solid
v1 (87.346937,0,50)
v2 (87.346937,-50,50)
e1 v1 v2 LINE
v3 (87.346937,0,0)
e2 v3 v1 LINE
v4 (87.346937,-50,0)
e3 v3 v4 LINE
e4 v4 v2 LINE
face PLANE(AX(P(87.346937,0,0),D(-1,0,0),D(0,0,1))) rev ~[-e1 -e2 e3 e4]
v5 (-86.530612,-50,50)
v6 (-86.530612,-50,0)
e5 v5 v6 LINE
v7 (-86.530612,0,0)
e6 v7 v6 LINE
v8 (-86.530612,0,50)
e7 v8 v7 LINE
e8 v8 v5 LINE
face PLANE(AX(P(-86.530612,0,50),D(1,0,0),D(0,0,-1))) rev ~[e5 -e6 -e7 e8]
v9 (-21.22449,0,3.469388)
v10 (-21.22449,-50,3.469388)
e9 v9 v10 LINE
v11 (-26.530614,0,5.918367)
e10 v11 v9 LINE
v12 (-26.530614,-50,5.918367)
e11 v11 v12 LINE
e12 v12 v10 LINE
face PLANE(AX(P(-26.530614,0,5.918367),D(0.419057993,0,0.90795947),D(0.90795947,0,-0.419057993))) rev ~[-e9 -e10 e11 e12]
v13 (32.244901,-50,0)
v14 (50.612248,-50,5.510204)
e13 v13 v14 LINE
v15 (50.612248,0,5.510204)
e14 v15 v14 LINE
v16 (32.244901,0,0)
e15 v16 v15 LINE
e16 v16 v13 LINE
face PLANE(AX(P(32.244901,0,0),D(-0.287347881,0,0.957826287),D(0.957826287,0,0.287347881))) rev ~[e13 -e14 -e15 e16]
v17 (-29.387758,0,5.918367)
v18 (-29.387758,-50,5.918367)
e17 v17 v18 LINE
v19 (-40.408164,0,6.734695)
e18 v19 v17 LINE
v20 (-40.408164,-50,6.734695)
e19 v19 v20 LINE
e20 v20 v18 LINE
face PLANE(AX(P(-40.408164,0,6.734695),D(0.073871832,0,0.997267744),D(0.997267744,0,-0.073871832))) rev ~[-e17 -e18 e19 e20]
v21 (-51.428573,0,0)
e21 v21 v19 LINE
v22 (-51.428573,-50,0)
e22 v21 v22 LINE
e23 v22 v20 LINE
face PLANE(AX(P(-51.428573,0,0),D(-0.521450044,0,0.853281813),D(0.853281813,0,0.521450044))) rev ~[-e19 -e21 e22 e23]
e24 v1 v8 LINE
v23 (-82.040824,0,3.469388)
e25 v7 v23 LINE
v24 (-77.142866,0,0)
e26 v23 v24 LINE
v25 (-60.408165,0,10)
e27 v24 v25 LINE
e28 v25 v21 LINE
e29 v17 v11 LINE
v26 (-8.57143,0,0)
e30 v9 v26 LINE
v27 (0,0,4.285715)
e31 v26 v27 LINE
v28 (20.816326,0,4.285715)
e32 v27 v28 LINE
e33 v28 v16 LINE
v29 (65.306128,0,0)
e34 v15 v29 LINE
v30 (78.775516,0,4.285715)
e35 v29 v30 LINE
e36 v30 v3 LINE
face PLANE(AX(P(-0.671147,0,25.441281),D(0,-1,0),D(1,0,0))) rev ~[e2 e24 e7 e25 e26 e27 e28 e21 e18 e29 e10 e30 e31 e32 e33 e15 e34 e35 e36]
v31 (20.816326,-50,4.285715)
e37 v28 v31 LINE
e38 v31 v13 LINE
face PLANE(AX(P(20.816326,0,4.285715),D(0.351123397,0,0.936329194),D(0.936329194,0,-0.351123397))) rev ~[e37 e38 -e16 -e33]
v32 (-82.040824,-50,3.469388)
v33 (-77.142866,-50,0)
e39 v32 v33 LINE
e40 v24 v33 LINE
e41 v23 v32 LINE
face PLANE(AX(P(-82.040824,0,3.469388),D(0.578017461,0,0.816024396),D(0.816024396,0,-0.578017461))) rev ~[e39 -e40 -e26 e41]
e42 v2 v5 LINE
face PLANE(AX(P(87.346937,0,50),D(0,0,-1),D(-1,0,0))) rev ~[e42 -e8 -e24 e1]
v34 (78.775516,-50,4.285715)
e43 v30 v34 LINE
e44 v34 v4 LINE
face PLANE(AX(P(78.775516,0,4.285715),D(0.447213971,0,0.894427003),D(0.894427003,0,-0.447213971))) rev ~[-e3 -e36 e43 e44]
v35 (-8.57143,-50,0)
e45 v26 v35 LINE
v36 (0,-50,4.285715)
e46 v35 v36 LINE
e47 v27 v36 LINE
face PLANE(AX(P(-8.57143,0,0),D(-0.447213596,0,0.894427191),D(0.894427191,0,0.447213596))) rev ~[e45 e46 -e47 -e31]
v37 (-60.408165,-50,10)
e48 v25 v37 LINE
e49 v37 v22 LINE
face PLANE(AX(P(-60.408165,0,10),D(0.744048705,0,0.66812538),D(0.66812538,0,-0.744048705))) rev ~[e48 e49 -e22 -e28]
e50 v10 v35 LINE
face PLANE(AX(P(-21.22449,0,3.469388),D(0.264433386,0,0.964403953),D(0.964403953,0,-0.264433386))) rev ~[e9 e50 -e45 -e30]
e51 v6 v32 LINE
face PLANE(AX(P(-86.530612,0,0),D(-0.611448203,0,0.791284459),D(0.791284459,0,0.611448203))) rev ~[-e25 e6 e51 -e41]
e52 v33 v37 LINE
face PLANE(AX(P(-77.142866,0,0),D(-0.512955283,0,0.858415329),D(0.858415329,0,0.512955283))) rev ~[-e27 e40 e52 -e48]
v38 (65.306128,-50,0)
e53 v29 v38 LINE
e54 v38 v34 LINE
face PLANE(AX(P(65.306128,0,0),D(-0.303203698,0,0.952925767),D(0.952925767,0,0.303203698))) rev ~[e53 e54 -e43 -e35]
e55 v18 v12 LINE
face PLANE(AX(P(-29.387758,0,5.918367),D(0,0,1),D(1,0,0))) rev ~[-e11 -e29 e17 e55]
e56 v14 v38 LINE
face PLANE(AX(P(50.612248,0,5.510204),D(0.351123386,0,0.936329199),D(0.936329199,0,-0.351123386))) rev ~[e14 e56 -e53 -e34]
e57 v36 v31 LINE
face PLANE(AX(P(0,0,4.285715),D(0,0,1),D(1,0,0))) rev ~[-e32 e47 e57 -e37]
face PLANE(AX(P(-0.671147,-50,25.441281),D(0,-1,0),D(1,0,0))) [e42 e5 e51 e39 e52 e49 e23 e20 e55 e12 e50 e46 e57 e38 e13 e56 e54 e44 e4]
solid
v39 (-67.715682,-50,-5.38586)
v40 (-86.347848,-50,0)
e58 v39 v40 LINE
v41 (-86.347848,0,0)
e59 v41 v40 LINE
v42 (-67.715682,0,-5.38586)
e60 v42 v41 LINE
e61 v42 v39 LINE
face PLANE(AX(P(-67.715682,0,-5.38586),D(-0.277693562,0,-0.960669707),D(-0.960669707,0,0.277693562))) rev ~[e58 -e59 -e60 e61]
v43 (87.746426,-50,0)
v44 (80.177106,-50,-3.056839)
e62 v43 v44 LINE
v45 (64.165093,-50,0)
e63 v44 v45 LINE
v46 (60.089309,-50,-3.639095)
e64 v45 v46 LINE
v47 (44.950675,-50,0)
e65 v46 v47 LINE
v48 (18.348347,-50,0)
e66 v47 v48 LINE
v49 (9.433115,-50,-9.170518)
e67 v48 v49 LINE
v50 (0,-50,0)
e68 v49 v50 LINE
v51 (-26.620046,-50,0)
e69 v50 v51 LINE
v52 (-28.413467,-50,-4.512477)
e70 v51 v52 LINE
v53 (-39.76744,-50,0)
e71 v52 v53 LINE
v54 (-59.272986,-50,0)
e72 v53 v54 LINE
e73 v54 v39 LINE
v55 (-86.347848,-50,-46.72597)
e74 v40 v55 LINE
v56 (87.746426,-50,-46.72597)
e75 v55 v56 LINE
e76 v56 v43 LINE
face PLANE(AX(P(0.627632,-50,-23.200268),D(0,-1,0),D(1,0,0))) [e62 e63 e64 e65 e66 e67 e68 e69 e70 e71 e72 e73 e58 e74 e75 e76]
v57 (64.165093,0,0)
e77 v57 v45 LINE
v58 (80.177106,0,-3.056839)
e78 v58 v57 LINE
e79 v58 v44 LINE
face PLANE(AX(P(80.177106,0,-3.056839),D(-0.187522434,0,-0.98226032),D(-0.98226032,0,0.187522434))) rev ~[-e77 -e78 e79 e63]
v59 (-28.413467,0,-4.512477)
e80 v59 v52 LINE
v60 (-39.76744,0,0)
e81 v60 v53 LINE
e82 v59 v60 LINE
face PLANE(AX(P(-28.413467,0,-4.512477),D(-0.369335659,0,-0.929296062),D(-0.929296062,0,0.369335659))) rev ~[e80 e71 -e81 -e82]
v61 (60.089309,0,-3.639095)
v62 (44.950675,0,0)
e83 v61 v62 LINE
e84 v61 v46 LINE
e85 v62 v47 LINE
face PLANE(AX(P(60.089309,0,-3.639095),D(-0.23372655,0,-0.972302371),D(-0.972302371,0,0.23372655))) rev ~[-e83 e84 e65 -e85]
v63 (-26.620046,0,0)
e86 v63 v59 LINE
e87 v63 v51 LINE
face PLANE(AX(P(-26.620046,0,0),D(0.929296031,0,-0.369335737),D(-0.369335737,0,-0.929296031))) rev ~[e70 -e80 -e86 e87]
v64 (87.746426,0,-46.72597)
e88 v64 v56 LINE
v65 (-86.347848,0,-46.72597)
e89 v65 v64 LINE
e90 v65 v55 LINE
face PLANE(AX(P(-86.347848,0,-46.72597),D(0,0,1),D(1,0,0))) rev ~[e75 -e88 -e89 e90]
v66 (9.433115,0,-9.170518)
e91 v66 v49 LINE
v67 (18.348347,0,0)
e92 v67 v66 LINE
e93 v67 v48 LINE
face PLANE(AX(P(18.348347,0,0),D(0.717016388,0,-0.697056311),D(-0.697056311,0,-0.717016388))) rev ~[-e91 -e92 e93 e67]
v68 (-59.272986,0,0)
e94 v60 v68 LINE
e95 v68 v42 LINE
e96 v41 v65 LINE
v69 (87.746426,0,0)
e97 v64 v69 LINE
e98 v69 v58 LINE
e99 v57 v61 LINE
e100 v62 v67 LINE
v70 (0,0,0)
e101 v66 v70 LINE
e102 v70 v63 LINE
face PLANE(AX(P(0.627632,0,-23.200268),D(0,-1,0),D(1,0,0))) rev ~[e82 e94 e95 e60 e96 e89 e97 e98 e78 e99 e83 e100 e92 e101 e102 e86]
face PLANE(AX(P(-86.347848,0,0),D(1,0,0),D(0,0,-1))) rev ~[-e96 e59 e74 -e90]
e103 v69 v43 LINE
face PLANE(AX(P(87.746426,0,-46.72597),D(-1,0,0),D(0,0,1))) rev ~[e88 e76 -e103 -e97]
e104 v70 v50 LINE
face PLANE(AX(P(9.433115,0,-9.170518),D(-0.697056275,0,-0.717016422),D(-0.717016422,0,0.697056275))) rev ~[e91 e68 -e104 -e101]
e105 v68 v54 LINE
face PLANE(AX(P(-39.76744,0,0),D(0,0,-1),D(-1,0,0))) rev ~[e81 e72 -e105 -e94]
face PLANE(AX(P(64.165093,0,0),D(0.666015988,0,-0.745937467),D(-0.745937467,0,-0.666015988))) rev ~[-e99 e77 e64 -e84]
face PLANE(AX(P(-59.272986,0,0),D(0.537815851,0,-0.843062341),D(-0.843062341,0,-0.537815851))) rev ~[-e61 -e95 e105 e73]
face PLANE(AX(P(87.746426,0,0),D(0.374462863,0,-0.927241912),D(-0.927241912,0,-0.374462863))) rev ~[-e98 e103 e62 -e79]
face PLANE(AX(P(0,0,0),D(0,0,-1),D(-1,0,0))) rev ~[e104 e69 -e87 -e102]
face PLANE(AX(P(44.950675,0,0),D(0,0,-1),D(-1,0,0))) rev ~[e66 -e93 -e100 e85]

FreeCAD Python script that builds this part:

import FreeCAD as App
import Part
import Sketcher
from FreeCAD import Vector

doc = App.newDocument("Part")
body = doc.addObject("PartDesign::Body", "Body")

sketch1 = body.newObject("Sketcher::SketchObject", "Sketch")
sketch1.AttachmentSupport = (doc.getObject("XZ_Plane"), [""])
sketch1.MapMode = "FlatFace"
sketch1.addGeometry(Part.LineSegment(Vector(-82, 3.5, 0), Vector(-77.1, 0, 0)), False)
sketch1.addGeometry(Part.LineSegment(Vector(-77.1, 0, 0), Vector(-60.4, 10, 0)), False)
sketch1.addGeometry(Part.LineSegment(Vector(-60.4, 10, 0), Vector(-51.4, 0, 0)), False)
sketch1.addGeometry(Part.LineSegment(Vector(-51.4, 0, 0), Vector(-40.4, 6.7, 0)), False)
sketch1.addGeometry(Part.LineSegment(Vector(-40.4, 6.7, 0), Vector(-29.4, 5.9, 0)), False)
sketch1.addGeometry(Part.LineSegment(Vector(-29.4, 5.9, 0), Vector(-26.5, 5.9, 0)), False)
sketch1.addGeometry(Part.LineSegment(Vector(-26.5, 5.9, 0), Vector(-21.2, 3.5, 0)), False)
sketch1.addGeometry(Part.LineSegment(Vector(-21.2, 3.5, 0), Vector(-8.6, 0, 0)), False)
sketch1.addGeometry(Part.LineSegment(Vector(-8.6, 0, 0), Vector(0, 4.3, 0)), False)
sketch1.addGeometry(Part.LineSegment(Vector(0, 4.3, 0), Vector(20.8, 4.3, 0)), False)
sketch1.addGeometry(Part.LineSegment(Vector(20.8, 4.3, 0), Vector(32.2, 0, 0)), False)
sketch1.addGeometry(Part.LineSegment(Vector(32.2, 0, 0), Vector(50.6, 5.5, 0)), False)
sketch1.addGeometry(Part.LineSegment(Vector(50.6, 5.5, 0), Vector(65.3, 0, 0)), False)
sketch1.addGeometry(Part.LineSegment(Vector(65.3, 0, 0), Vector(78.8, 4.3, 0)), False)
sketch1.addGeometry(Part.LineSegment(Vector(78.8, 4.3, 0), Vector(87.3, 0, 0)), False)
sketch1.addGeometry(Part.LineSegment(Vector(87.3, 0, 0), Vector(87.3, 50, 0)), False)
sketch1.addGeometry(Part.LineSegment(Vector(87.3, 50, 0), Vector(-86.5, 50, 0)), False)
sketch1.addGeometry(Part.LineSegment(Vector(-86.5, 50, 0), Vector(-86.5, 0, 0)), False)
sketch1.addGeometry(Part.LineSegment(Vector(-86.5, 0, 0), Vector(-82, 3.5, 0)), False)
sketch1.addConstraint(Sketcher.Constraint("Coincident", 0, 2, 1, 1))
sketch1.addConstraint(Sketcher.Constraint("Coincident", 1, 2, 2, 1))
sketch1.addConstraint(Sketcher.Constraint("Coincident", 2, 2, 3, 1))
sketch1.addConstraint(Sketcher.Constraint("Coincident", 3, 2, 4, 1))
sketch1.addConstraint(Sketcher.Constraint("Coincident", 4, 2, 5, 1))
sketch1.addConstraint(Sketcher.Constraint("Coincident", 5, 2, 6, 1))
sketch1.addConstraint(Sketcher.Constraint("Coincident", 6, 2, 7, 1))
sketch1.addConstraint(Sketcher.Constraint("Coincident", 7, 2, 8, 1))
sketch1.addConstraint(Sketcher.Constraint("Coincident", 8, 2, 9, 1))
sketch1.addConstraint(Sketcher.Constraint("Coincident", 9, 2, 10, 1))
sketch1.addConstraint(Sketcher.Constraint("Coincident", 10, 2, 11, 1))
sketch1.addConstraint(Sketcher.Constraint("Coincident", 11, 2, 12, 1))
sketch1.addConstraint(Sketcher.Constraint("Coincident", 12, 2, 13, 1))
sketch1.addConstraint(Sketcher.Constraint("Coincident", 13, 2, 14, 1))
sketch1.addConstraint(Sketcher.Constraint("Coincident", 14, 2, 15, 1))
sketch1.addConstraint(Sketcher.Constraint("Coincident", 15, 2, 16, 1))
sketch1.addConstraint(Sketcher.Constraint("Coincident", 16, 2, 17, 1))
sketch1.addConstraint(Sketcher.Constraint("Coincident", 17, 2, 18, 1))
sketch1.addConstraint(Sketcher.Constraint("Coincident", 18, 2, 0, 1))
sketch1.addConstraint(Sketcher.Constraint("Horizontal", 5))
sketch1.addConstraint(Sketcher.Constraint("Horizontal", 9))
sketch1.addConstraint(Sketcher.Constraint("Vertical", 15))
sketch1.addConstraint(Sketcher.Constraint("Horizontal", 16))
sketch1.addConstraint(Sketcher.Constraint("Vertical", 17))
sketch1.addConstraint(Sketcher.Constraint("PointOnObject", 0, 2, -1))
sketch1.addConstraint(Sketcher.Constraint("PointOnObject", 2, 2, -1))
sketch1.addConstraint(Sketcher.Constraint("PointOnObject", 7, 2, -1))
sketch1.addConstraint(Sketcher.Constraint("PointOnObject", 8, 2, -2))
sketch1.addConstraint(Sketcher.Constraint("PointOnObject", 10, 2, -1))
sketch1.addConstraint(Sketcher.Constraint("PointOnObject", 12, 2, -1))
sketch1.addConstraint(Sketcher.Constraint("PointOnObject", 14, 2, -1))
sketch1.addConstraint(Sketcher.Constraint("PointOnObject", 17, 2, -1))
sketch1.addConstraint(Sketcher.Constraint("Parallel", 10, 12))
sketch1.addConstraint(Sketcher.Constraint("Horizontal", 9, 2, 13, 2))
sketch1.addConstraint(Sketcher.Constraint("Horizontal", 6, 2, 18, 2))
sketch1.addConstraint(Sketcher.Constraint("DistanceY", 15, 1, 15, 2, 50.0))
sketch1.addConstraint(Sketcher.Constraint("DistanceY", -1, 1, 1, 2, 10.0))
sketch1.addConstraint(Sketcher.Constraint("DistanceX", 1, 2, 3, 2, 20.000001))
sketch1.addConstraint(Sketcher.Constraint("Distance", 4, 11.050599))
sketch1.addConstraint(Sketcher.Constraint("DistanceX", 16, 2, 16, 1, 173.877549))
sketch1.addConstraint(Sketcher.Constraint("DistanceX", -1, 1, 10, 2, 32.244901))
sketch1.addConstraint(Sketcher.Constraint("DistanceX", 0, 2, 1, 2, 16.734701))
sketch1.addConstraint(Sketcher.Constraint("DistanceX", 9, 2, 12, 2, 44.489802))
sketch1.addConstraint(Sketcher.Constraint("Distance", 0, 6.00222))
sketch1.addConstraint(Sketcher.Constraint("Distance", 2, 13.43998))
sketch1.addConstraint(Sketcher.Constraint("Distance", 3, 12.915322))
sketch1.addConstraint(Sketcher.Constraint("Distance", 6, 5.84401))
sketch1.addConstraint(Sketcher.Constraint("Distance", 8, 9.58315))
sketch1.addConstraint(Sketcher.Constraint("Distance", 12, 15.69307))
sketch1.addConstraint(Sketcher.Constraint("Distance", 13, 14.134772))
sketch1.addConstraint(Sketcher.Constraint("Distance", 18, 5.674051))
sketch1.addConstraint(Sketcher.Constraint("DistanceX", 5, 1, 5, 2, 2.857144))
sketch1.addConstraint(Sketcher.Constraint("DistanceX", 9, 1, 9, 2, 20.816326))
sketch1.addConstraint(Sketcher.Constraint("DistanceX", 4, 2, -1, 1, 29.387758))
sketch1.addConstraint(Sketcher.Constraint("DistanceX", 6, 2, -1, 1, 21.22449))
sketch1.addConstraint(Sketcher.Constraint("DistanceX", 7, 2, -1, 1, 8.57143))
sketch1.addConstraint(Sketcher.Constraint("DistanceY", 4, 2, 3, 2, 0.816328))
pad1 = body.newObject("PartDesign::Pad", "Pad")
pad1.Profile = sketch1
pad1.Length = 50
body2 = doc.addObject("PartDesign::Body", "Body001")

sketch2 = body2.newObject("Sketcher::SketchObject", "Sketch001")
sketch2.AttachmentSupport = (doc.getObject("XZ_Plane001"), [""])
sketch2.MapMode = "FlatFace"
sketch2.addGeometry(Part.LineSegment(Vector(-67.7, -5.4, 0), Vector(-86.3, 0, 0)), False)
sketch2.addGeometry(Part.LineSegment(Vector(-86.3, 0, 0), Vector(-86.3, -46.7, 0)), False)
sketch2.addGeometry(Part.LineSegment(Vector(-86.3, -46.7, 0), Vector(87.7, -46.7, 0)), False)
sketch2.addGeometry(Part.LineSegment(Vector(87.7, -46.7, 0), Vector(87.7, 0, 0)), False)
sketch2.addGeometry(Part.LineSegment(Vector(87.7, 0, 0), Vector(80.2, -3.1, 0)), False)
sketch2.addGeometry(Part.LineSegment(Vector(80.2, -3.1, 0), Vector(64.2, 0, 0)), False)
sketch2.addGeometry(Part.LineSegment(Vector(64.2, 0, 0), Vector(60.1, -3.6, 0)), False)
sketch2.addGeometry(Part.LineSegment(Vector(60.1, -3.6, 0), Vector(45, 0, 0)), False)
sketch2.addGeometry(Part.LineSegment(Vector(45, 0, 0), Vector(18.3, 0, 0)), False)
sketch2.addGeometry(Part.LineSegment(Vector(18.3, 0, 0), Vector(9.4, -9.2, 0)), False)
sketch2.addGeometry(Part.LineSegment(Vector(9.4, -9.2, 0), Vector(0, 0, 0)), False)
sketch2.addGeometry(Part.LineSegment(Vector(0, 0, 0), Vector(-26.6, 0, 0)), False)
sketch2.addGeometry(Part.LineSegment(Vector(-26.6, 0, 0), Vector(-28.4, -4.5, 0)), False)
sketch2.addGeometry(Part.LineSegment(Vector(-28.4, -4.5, 0), Vector(-39.8, 0, 0)), False)
sketch2.addGeometry(Part.LineSegment(Vector(-39.8, 0, 0), Vector(-59.3, 0, 0)), False)
sketch2.addGeometry(Part.LineSegment(Vector(-59.3, 0, 0), Vector(-67.7, -5.4, 0)), False)
sketch2.addConstraint(Sketcher.Constraint("Coincident", 0, 2, 1, 1))
sketch2.addConstraint(Sketcher.Constraint("Coincident", 1, 2, 2, 1))
sketch2.addConstraint(Sketcher.Constraint("Coincident", 2, 2, 3, 1))
sketch2.addConstraint(Sketcher.Constraint("Coincident", 3, 2, 4, 1))
sketch2.addConstraint(Sketcher.Constraint("Coincident", 4, 2, 5, 1))
sketch2.addConstraint(Sketcher.Constraint("Coincident", 5, 2, 6, 1))
sketch2.addConstraint(Sketcher.Constraint("Coincident", 6, 2, 7, 1))
sketch2.addConstraint(Sketcher.Constraint("Coincident", 7, 2, 8, 1))
sketch2.addConstraint(Sketcher.Constraint("Coincident", 8, 2, 9, 1))
sketch2.addConstraint(Sketcher.Constraint("Coincident", 9, 2, 10, 1))
sketch2.addConstraint(Sketcher.Constraint("Coincident", 10, 2, 11, 1))
sketch2.addConstraint(Sketcher.Constraint("Coincident", 11, 2, 12, 1))
sketch2.addConstraint(Sketcher.Constraint("Coincident", 12, 2, 13, 1))
sketch2.addConstraint(Sketcher.Constraint("Coincident", 13, 2, 14, 1))
sketch2.addConstraint(Sketcher.Constraint("Coincident", 14, 2, 15, 1))
sketch2.addConstraint(Sketcher.Constraint("Coincident", 15, 2, 0, 1))
sketch2.addConstraint(Sketcher.Constraint("Vertical", 1))
sketch2.addConstraint(Sketcher.Constraint("Horizontal", 2))
sketch2.addConstraint(Sketcher.Constraint("Vertical", 3))
sketch2.addConstraint(Sketcher.Constraint("Horizontal", 8))
sketch2.addConstraint(Sketcher.Constraint("Horizontal", 11))
sketch2.addConstraint(Sketcher.Constraint("Horizontal", 14))
sketch2.addConstraint(Sketcher.Constraint("Coincident", 10, 2, -1, 1))
sketch2.addConstraint(Sketcher.Constraint("PointOnObject", 0, 2, -1))
sketch2.addConstraint(Sketcher.Constraint("PointOnObject", 3, 2, -1))
sketch2.addConstraint(Sketcher.Constraint("PointOnObject", 5, 2, -1))
sketch2.addConstraint(Sketcher.Constraint("PointOnObject", 7, 2, -1))
sketch2.addConstraint(Sketcher.Constraint("PointOnObject", 13, 2, -1))
sketch2.addConstraint(Sketcher.Constraint("Perpendicular", 9, 10))
sketch2.addConstraint(Sketcher.Constraint("Perpendicular", 12, 13))
sketch2.addConstraint(Sketcher.Constraint("Distance", 12, 4.855801))
sketch2.addConstraint(Sketcher.Constraint("DistanceY", 1, 2, 1, 1, 46.72597))
sketch2.addConstraint(Sketcher.Constraint("DistanceX", 0, 2, 11, 2, 59.727802))
sketch2.addConstraint(Sketcher.Constraint("Distance", 5, 16.301191))
sketch2.addConstraint(Sketcher.Constraint("Distance", 9, 12.78983))
sketch2.addConstraint(Sketcher.Constraint("Distance", 13, 12.217821))
sketch2.addConstraint(Sketcher.Constraint("Distance", 15, 10.01432))
sketch2.addConstraint(Sketcher.Constraint("DistanceX", 2, 1, 2, 2, 174.094274))
sketch2.addConstraint(Sketcher.Constraint("DistanceX", 8, 2, 8, 1, 26.602328))
sketch2.addConstraint(Sketcher.Constraint("DistanceX", 11, 2, 11, 1, 26.620046))
sketch2.addConstraint(Sketcher.Constraint("DistanceX", 14, 2, 14, 1, 19.505546))
sketch2.addConstraint(Sketcher.Constraint("DistanceY", 4, 2, -1, 1, 3.056839))
sketch2.addConstraint(Sketcher.Constraint("DistanceX", -1, 1, 6, 2, 60.089309))
sketch2.addConstraint(Sketcher.Constraint("DistanceX", 15, 2, -1, 1, 67.715682))
sketch2.addConstraint(Sketcher.Constraint("DistanceX", 4, 2, 3, 2, 7.56932))
sketch2.addConstraint(Sketcher.Constraint("DistanceX", 7, 2, 5, 2, 19.214418))
sketch2.addConstraint(Sketcher.Constraint("Distance", 6, 5.463975))
pad2 = body2.newObject("PartDesign::Pad", "Pad001")
pad2.Profile = sketch2
pad2.Length = 50

doc.recompute()
